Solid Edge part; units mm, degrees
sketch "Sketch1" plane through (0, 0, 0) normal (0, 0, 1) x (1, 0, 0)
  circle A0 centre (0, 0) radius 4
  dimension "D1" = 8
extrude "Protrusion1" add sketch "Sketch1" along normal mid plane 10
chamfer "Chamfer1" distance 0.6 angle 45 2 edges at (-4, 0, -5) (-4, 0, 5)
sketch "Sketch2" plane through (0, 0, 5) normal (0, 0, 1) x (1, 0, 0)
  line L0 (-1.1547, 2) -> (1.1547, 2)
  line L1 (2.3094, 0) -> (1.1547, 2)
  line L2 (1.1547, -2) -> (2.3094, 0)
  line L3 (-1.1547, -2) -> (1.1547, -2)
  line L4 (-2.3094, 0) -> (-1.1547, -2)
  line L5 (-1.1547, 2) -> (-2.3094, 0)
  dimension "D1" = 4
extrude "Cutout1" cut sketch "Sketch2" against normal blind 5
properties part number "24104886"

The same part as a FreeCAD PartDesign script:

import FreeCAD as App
import Part
import Sketcher
from FreeCAD import Vector
Q = App.Units.Quantity


def edges_at(feature, points):
    """Names of the edges that pass closest to the given points."""
    edges = feature.Shape.Edges
    near = lambda p: min(range(len(edges)), key=lambda i: edges[i].distToShape(Part.Vertex(*p))[0])
    return sorted({f"Edge{near(p) + 1}" for p in points})

doc = App.newDocument("Part")
body = doc.addObject("PartDesign::Body", "Body")

sketch1 = body.newObject("Sketcher::SketchObject", "Sketch")
sketch1.AttachmentSupport = (doc.getObject("XY_Plane"), [""])
sketch1.MapMode = "FlatFace"
sketch1.addGeometry(Part.Circle(Vector(0, 0, 0), Vector(0, 0, 1), 4), False)
sketch1.addConstraint(Sketcher.Constraint("Coincident", 0, 3, -1, 1))
sketch1.addConstraint(Sketcher.Constraint("Diameter", 0, 8.0))
pad1 = body.newObject("PartDesign::Pad", "Pad")
pad1.Profile = sketch1
pad1.Length = 10
pad1.Midplane = True
doc.recompute()

chamfer = body.newObject("PartDesign::Chamfer", "Chamfer")
chamfer.Base = (pad1, edges_at(pad1, [(-4, 0, -5), (-4, 0, 5)]))
chamfer.Size = 0.6

sketch2 = body.newObject("Sketcher::SketchObject", "Sketch001")
sketch2.AttachmentSupport = (doc.getObject("XY_Plane"), [""])
sketch2.MapMode = "FlatFace"
sketch2.AttachmentOffset = App.Placement(Vector(0, 0, 5), App.Rotation())
sketch2.addGeometry(Part.LineSegment(Vector(1.2, 2, 0), Vector(-1.2, 2, 0)), False)
sketch2.addGeometry(Part.LineSegment(Vector(-1.2, 2, 0), Vector(-2.3, 0, 0)), False)
sketch2.addGeometry(Part.LineSegment(Vector(-2.3, 0, 0), Vector(-1.2, -2, 0)), False)
sketch2.addGeometry(Part.LineSegment(Vector(-1.2, -2, 0), Vector(1.2, -2, 0)), False)
sketch2.addGeometry(Part.LineSegment(Vector(1.2, -2, 0), Vector(2.3, 0, 0)), False)
sketch2.addGeometry(Part.LineSegment(Vector(2.3, 0, 0), Vector(1.2, 2, 0)), False)
sketch2.addConstraint(Sketcher.Constraint("Coincident", 0, 2, 1, 1))
sketch2.addConstraint(Sketcher.Constraint("Coincident", 1, 2, 2, 1))
sketch2.addConstraint(Sketcher.Constraint("Coincident", 2, 2, 3, 1))
sketch2.addConstraint(Sketcher.Constraint("Coincident", 3, 2, 4, 1))
sketch2.addConstraint(Sketcher.Constraint("Coincident", 4, 2, 5, 1))
sketch2.addConstraint(Sketcher.Constraint("Coincident", 5, 2, 0, 1))
sketch2.addConstraint(Sketcher.Constraint("Horizontal", 0))
sketch2.addConstraint(Sketcher.Constraint("Horizontal", 3))
sketch2.addConstraint(Sketcher.Constraint("Symmetric", 0, 2, 3, 2, -1, 1))
sketch2.addConstraint(Sketcher.Constraint("Symmetric", 1, 2, 4, 2, -1, 1))
sketch2.addConstraint(Sketcher.Constraint("PointOnObject", 1, 2, -1))
sketch2.addConstraint(Sketcher.Constraint("Parallel", 2, 5))
sketch2.addConstraint(Sketcher.Constraint("Vertical", 0, 2, 2, 2))
sketch2.addConstraint(Sketcher.Constraint("Angle", 1, Q("-120 deg")))
sketch2.addConstraint(Sketcher.Constraint("DistanceY", -1, 1, 0, 2, 2.0))
sketch2.addConstraint(Sketcher.Constraint("DistanceX", 0, 2, 0, 1, 2.3094))
pocket1 = body.newObject("PartDesign::Pocket", "Pocket")
pocket1.Profile = sketch2
pocket1.Length = 5

doc.recompute()
